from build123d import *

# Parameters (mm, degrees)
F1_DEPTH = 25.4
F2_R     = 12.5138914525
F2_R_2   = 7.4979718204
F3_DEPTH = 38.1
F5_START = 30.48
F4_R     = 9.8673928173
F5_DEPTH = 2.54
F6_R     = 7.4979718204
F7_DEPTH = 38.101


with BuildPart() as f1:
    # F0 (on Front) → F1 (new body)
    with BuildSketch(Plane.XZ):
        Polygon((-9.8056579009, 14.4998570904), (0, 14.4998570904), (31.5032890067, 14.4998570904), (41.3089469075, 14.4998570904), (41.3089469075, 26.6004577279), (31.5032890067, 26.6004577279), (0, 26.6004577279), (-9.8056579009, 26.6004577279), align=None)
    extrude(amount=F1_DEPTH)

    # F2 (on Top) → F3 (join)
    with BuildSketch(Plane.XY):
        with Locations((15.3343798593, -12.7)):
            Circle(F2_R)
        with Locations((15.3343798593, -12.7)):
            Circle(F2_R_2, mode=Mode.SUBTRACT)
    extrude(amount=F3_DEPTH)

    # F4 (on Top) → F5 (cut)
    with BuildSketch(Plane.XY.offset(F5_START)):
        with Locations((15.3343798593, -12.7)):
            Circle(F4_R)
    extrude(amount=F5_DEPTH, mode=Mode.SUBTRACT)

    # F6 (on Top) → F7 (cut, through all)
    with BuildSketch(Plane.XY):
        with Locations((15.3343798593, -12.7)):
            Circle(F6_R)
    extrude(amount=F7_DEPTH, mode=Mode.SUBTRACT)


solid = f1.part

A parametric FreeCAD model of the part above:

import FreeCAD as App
import Part
import Sketcher

V = App.Vector
Q = App.Units.Quantity


def add_polygon(sketch, points):
    """Adds a closed chain of lines whose ends are joined by coincident constraints."""
    first, n = sketch.GeometryCount, len(points)
    for a, b in zip(points, points[1:] + points[:1]):
        sketch.addGeometry(Part.LineSegment(App.Vector(*a, 0), App.Vector(*b, 0)), False)
    for i in range(n):
        sketch.addConstraint(Sketcher.Constraint("Coincident", first + i, 2, first + (i + 1) % n, 1))

doc = App.newDocument("Part")
body = doc.addObject("PartDesign::Body", "Body")

sketch1 = body.newObject("Sketcher::SketchObject", "Sketch")
sketch1.AttachmentSupport = (doc.getObject("XZ_Plane"), [""])
sketch1.MapMode = "FlatFace"
add_polygon(sketch1, [(-9.805658, 14.499857), (41.308947, 14.499857), (41.308947, 26.600458), (-9.805658, 26.600458)])
sketch1.addConstraint([
    Sketcher.Constraint("Horizontal", 0),
    Sketcher.Constraint("Vertical", 1),
    Sketcher.Constraint("Horizontal", 2),
    Sketcher.Constraint("Vertical", 3),
    Sketcher.Constraint("DistanceY", 1, 1, 1, 2, 12.100601),
    Sketcher.Constraint("DistanceX", 0, 1, 0, 2, 51.114605),
    Sketcher.Constraint("DistanceX", -1, 1, 0, 2, 41.308947),
    Sketcher.Constraint("DistanceY", -1, 1, 0, 2, 14.499857),
])
pad1 = body.newObject("PartDesign::Pad", "Pad")
pad1.Profile = sketch1
pad1.Length = Q("1 in")

sketch2 = body.newObject("Sketcher::SketchObject", "Sketch001")
sketch2.AttachmentSupport = (doc.getObject("XY_Plane"), [""])
sketch2.MapMode = "FlatFace"
sketch2.addGeometry([
    Part.Circle(V(15.33438, -12.7, 0), V(0, 0, 1), 12.513891),
    Part.Circle(V(15.33438, -12.7, 0), V(0, 0, 1), 7.497972),
], False)
sketch2.addConstraint([
    Sketcher.Constraint("Coincident", 1, 3, 0, 3),
    Sketcher.Constraint("DistanceY", 0, 3, -1, 1, Q("0.5 in")),
    Sketcher.Constraint("Diameter", 0, 25.027783),
    Sketcher.Constraint("Diameter", 1, 14.995944),
    Sketcher.Constraint("DistanceX", -1, 1, 0, 3, 15.33438),
])
pad2 = body.newObject("PartDesign::Pad", "Pad001")
pad2.Profile = sketch2
pad2.Length = Q("1.5 in")

sketch3 = body.newObject("Sketcher::SketchObject", "Sketch002")
sketch3.AttachmentSupport = (doc.getObject("XY_Plane"), [""])
sketch3.MapMode = "FlatFace"
sketch3.AttachmentOffset = App.Placement(V(0, 0, 1.2 * 25.4), App.Rotation())
sketch3.addGeometry(Part.Circle(V(15.33438, -12.7, 0), V(0, 0, 1), 9.867393), False)
sketch3.addConstraint([
    Sketcher.Constraint("DistanceY", 0, 3, -1, 1, Q("0.5 in")),
    Sketcher.Constraint("Diameter", 0, 19.734786),
    Sketcher.Constraint("DistanceX", -1, 1, 0, 3, 15.33438),
])
pocket1 = body.newObject("PartDesign::Pocket", "Pocket")
pocket1.Profile = sketch3
pocket1.Length = Q("0.1 in")
pocket1.Reversed = True

sketch4 = body.newObject("Sketcher::SketchObject", "Sketch003")
sketch4.AttachmentSupport = (doc.getObject("XY_Plane"), [""])
sketch4.MapMode = "FlatFace"
sketch4.addGeometry(Part.Circle(V(15.33438, -12.7, 0), V(0, 0, 1), 7.497972), False)
sketch4.addConstraint([
    Sketcher.Constraint("DistanceY", 0, 3, -1, 1, Q("0.5 in")),
    Sketcher.Constraint("Diameter", 0, 14.995944),
    Sketcher.Constraint("DistanceX", -1, 1, 0, 3, 15.33438),
])
pocket2 = body.newObject("PartDesign::Pocket", "Pocket001")
pocket2.Profile = sketch4
pocket2.Type = "ThroughAll"
pocket2.Reversed = True

doc.recompute()
